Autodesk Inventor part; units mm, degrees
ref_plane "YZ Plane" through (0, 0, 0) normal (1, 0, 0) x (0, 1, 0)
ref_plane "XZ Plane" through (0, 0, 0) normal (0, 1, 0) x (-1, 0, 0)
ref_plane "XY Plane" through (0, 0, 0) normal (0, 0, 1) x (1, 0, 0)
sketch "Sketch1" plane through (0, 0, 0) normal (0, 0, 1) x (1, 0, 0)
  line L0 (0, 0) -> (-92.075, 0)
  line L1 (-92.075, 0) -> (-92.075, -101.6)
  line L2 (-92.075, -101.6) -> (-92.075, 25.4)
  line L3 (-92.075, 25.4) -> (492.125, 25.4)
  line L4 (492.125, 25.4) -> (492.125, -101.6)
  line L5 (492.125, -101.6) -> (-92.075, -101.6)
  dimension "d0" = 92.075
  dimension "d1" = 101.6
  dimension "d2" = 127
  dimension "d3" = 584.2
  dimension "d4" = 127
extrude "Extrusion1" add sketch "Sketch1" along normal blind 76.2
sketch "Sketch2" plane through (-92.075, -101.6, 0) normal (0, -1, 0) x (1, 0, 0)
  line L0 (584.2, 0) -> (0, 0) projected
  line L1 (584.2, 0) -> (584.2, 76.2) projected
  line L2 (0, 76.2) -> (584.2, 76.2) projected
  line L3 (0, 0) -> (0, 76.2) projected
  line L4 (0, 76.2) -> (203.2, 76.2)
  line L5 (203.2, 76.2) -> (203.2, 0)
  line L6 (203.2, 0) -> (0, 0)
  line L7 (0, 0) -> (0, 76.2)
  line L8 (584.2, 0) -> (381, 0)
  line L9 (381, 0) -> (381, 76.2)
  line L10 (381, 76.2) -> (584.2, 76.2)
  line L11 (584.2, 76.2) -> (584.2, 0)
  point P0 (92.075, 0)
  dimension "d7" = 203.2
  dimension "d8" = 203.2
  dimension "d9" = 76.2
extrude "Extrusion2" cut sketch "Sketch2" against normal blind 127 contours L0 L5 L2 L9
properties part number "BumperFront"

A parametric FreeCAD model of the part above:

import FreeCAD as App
import Part
import Sketcher

V = App.Vector
Q = App.Units.Quantity

doc = App.newDocument("Part")
params = doc.addObject("Spreadsheet::Sheet", "Params")
for row, (alias, value) in enumerate([
    ("sketch1_width", "23 in"),
    ("sketch1_height", "5 in"),
    ("pad1_length", "3 in"),
    ("sketch2_height", "3 in"),
    ("sketch2_width", "7 in"),
    ("pocket1_length", "5 in"),
], start=1):
    params.set(f"A{row}", alias)
    params.set(f"B{row}", "=" + value)
    params.setAlias(f"B{row}", alias)

body = doc.addObject("PartDesign::Body", "Body")
body.AllowCompound = True

# Sketch on XY plane
sketch1 = body.newObject("Sketcher::SketchObject", "Sketch")
sketch1.AttachmentSupport = (doc.getObject("XY_Plane"), [""])
sketch1.MapMode = "FlatFace"
sketch1.addGeometry(Part.LineSegment(V(-92.075, 25.4, 0), V(-92.075, -101.6, 0)), False)
sketch1.addGeometry(Part.LineSegment(V(-92.075, -101.6, 0), V(492.125, -101.6, 0)), False)
sketch1.addGeometry(Part.LineSegment(V(492.125, -101.6, 0), V(492.125, 25.4, 0)), False)
sketch1.addGeometry(Part.LineSegment(V(492.125, 25.4, 0), V(-92.075, 25.4, 0)), False)
sketch1.addConstraint(Sketcher.Constraint("Coincident", 0, 2, 1, 1))
sketch1.addConstraint(Sketcher.Constraint("Coincident", 1, 2, 2, 1))
sketch1.addConstraint(Sketcher.Constraint("Coincident", 2, 2, 3, 1))
sketch1.addConstraint(Sketcher.Constraint("Coincident", 3, 2, 0, 1))
sketch1.addConstraint(Sketcher.Constraint("Vertical", 0))
sketch1.addConstraint(Sketcher.Constraint("Horizontal", 1))
sketch1.addConstraint(Sketcher.Constraint("Vertical", 2))
sketch1.addConstraint(Sketcher.Constraint("Horizontal", 3))
sketch1.addConstraint(Sketcher.Constraint("DistanceX", 1, 1, 1, 2, Q("23 in")))
sketch1.addConstraint(Sketcher.Constraint("DistanceY", 0, 2, 0, 1, Q("5 in")))
sketch1.addConstraint(Sketcher.Constraint("DistanceY", 0, 2, -1, 1, Q("4 in")))
sketch1.addConstraint(Sketcher.Constraint("DistanceX", 0, 2, -1, 1, Q("3.625 in")))
sketch1.setExpression("Constraints[8]", "Params.sketch1_width")
sketch1.setExpression("Constraints[9]", "Params.sketch1_height")
pad1 = body.newObject("PartDesign::Pad", "Pad")
pad1.Profile = sketch1
pad1.setExpression("Length", "Params.pad1_length")

# Sketch on XZ plane
sketch2 = body.newObject("Sketcher::SketchObject", "Sketch001")
sketch2.AttachmentSupport = (doc.getObject("XZ_Plane"), [""])
sketch2.MapMode = "FlatFace"
sketch2.AttachmentOffset = App.Placement(V(0, 0, 4 * 25.4), App.Rotation())
sketch2.addGeometry(Part.LineSegment(V(111.125, 0, 0), V(288.925, 0, 0)), False)
sketch2.addGeometry(Part.LineSegment(V(288.925, 0, 0), V(288.925, 76.2, 0)), False)
sketch2.addGeometry(Part.LineSegment(V(288.925, 76.2, 0), V(111.125, 76.2, 0)), False)
sketch2.addGeometry(Part.LineSegment(V(111.125, 76.2, 0), V(111.125, 0, 0)), False)
sketch2.addConstraint(Sketcher.Constraint("Coincident", 0, 2, 1, 1))
sketch2.addConstraint(Sketcher.Constraint("Coincident", 1, 2, 2, 1))
sketch2.addConstraint(Sketcher.Constraint("Coincident", 2, 2, 3, 1))
sketch2.addConstraint(Sketcher.Constraint("Coincident", 3, 2, 0, 1))
sketch2.addConstraint(Sketcher.Constraint("Horizontal", 0))
sketch2.addConstraint(Sketcher.Constraint("Vertical", 1))
sketch2.addConstraint(Sketcher.Constraint("Horizontal", 2))
sketch2.addConstraint(Sketcher.Constraint("Vertical", 3))
sketch2.addConstraint(Sketcher.Constraint("PointOnObject", 0, 2, -1))
sketch2.addConstraint(Sketcher.Constraint("DistanceY", 1, 1, 1, 2, Q("3 in")))
sketch2.addConstraint(Sketcher.Constraint("DistanceX", 0, 1, 0, 2, Q("7 in")))
sketch2.addConstraint(Sketcher.Constraint("DistanceX", -1, 1, 0, 2, Q("11.375 in")))
sketch2.setExpression("Constraints[9]", "Params.sketch2_height")
sketch2.setExpression("Constraints[10]", "Params.sketch2_width")
pocket1 = body.newObject("PartDesign::Pocket", "Pocket")
pocket1.Profile = sketch2
pocket1.setExpression("Length", "Params.pocket1_length")

doc.recompute()
